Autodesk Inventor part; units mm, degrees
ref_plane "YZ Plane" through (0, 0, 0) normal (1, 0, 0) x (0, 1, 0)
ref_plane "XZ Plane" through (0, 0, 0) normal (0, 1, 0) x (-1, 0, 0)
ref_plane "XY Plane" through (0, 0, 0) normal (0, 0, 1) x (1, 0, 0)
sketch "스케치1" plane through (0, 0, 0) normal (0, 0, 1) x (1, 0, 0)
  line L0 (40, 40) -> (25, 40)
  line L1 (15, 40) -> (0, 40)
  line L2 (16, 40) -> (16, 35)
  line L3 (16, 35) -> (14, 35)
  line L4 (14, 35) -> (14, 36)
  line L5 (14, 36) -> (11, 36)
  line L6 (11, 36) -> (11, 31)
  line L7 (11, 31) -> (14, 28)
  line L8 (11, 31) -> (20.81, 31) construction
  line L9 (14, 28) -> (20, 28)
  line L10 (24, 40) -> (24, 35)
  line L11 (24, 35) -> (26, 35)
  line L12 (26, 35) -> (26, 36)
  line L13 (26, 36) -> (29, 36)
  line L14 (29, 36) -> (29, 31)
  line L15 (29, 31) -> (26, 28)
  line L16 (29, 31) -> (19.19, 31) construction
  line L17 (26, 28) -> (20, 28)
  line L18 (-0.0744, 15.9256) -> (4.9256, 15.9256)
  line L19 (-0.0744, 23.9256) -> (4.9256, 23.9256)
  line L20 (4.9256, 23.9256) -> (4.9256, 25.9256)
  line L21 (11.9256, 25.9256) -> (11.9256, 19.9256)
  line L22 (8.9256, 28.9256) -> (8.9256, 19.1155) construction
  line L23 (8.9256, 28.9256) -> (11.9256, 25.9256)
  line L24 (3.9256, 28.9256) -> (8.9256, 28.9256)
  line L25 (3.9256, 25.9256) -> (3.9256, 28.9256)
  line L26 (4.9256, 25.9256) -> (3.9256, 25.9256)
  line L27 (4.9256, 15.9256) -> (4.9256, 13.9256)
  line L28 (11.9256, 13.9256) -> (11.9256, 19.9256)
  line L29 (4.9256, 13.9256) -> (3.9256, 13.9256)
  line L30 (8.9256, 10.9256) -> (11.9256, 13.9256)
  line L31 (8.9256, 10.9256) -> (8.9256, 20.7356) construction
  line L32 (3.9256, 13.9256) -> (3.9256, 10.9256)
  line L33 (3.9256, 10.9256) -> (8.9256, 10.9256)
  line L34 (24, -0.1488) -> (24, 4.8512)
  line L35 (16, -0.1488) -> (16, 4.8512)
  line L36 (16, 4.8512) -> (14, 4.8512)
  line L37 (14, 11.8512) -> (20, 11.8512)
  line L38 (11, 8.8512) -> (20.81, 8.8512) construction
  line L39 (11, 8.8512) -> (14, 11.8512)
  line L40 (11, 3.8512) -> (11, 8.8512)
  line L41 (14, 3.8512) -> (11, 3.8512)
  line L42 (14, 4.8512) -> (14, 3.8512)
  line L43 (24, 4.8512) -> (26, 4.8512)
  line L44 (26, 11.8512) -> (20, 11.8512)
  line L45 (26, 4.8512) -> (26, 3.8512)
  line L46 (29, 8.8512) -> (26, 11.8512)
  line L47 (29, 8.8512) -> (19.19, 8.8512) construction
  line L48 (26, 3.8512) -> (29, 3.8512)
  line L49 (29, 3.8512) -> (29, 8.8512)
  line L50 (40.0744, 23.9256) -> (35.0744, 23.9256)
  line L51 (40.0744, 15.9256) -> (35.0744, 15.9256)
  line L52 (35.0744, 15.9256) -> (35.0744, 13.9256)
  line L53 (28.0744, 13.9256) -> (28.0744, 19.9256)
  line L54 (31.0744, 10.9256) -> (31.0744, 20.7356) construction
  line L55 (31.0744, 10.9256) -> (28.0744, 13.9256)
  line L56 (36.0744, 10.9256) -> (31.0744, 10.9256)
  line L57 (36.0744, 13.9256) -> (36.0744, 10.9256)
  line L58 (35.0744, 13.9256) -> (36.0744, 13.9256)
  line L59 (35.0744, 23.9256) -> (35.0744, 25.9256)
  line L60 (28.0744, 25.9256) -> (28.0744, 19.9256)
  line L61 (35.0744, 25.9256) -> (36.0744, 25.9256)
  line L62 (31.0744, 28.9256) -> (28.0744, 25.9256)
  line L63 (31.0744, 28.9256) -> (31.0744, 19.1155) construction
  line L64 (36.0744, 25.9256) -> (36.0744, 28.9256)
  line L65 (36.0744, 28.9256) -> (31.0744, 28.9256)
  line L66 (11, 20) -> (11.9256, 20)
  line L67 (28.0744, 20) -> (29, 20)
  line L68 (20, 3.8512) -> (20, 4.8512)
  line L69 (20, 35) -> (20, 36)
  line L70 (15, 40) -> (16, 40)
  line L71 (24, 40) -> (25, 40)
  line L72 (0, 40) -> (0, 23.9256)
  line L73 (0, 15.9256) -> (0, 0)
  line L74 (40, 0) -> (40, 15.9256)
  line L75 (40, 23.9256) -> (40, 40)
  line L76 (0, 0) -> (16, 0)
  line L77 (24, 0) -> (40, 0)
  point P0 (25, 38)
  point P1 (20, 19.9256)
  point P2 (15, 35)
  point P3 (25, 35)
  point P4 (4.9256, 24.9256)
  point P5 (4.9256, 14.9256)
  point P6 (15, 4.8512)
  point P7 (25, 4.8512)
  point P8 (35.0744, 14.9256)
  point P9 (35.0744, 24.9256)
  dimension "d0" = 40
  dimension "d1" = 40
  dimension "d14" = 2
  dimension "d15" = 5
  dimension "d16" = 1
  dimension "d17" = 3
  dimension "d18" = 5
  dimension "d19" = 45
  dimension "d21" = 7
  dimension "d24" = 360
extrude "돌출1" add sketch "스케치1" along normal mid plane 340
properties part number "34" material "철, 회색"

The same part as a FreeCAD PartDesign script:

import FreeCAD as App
import Part
import Sketcher

V = App.Vector
Q = App.Units.Quantity

doc = App.newDocument("Part")
body = doc.addObject("PartDesign::Body", "Body")

sketch1 = body.newObject("Sketcher::SketchObject", "Sketch")
sketch1.AttachmentSupport = (doc.getObject("XY_Plane"), [""])
sketch1.MapMode = "FlatFace"
sketch1.addGeometry([
    Part.LineSegment(V(40, 23.9, 0), V(40, 40, 0)),
    Part.LineSegment(V(40, 40, 0), V(24, 40, 0)),
    Part.LineSegment(V(24, 40, 0), V(24, 35, 0)),
    Part.LineSegment(V(24, 35, 0), V(26, 35, 0)),
    Part.LineSegment(V(26, 35, 0), V(26, 36, 0)),
    Part.LineSegment(V(26, 36, 0), V(29, 36, 0)),
    Part.LineSegment(V(29, 36, 0), V(29, 31, 0)),
    Part.LineSegment(V(29, 31, 0), V(26, 28, 0)),
    Part.LineSegment(V(26, 28, 0), V(14, 28, 0)),
    Part.LineSegment(V(14, 28, 0), V(11, 31, 0)),
    Part.LineSegment(V(11, 31, 0), V(11, 36, 0)),
    Part.LineSegment(V(11, 36, 0), V(14, 36, 0)),
    Part.LineSegment(V(14, 36, 0), V(14, 35, 0)),
    Part.LineSegment(V(14, 35, 0), V(16, 35, 0)),
    Part.LineSegment(V(16, 35, 0), V(16, 40, 0)),
    Part.LineSegment(V(16, 40, 0), V(0, 40, 0)),
    Part.LineSegment(V(0, 40, 0), V(0, 23.9, 0)),
    Part.LineSegment(V(0, 23.9, 0), V(4.9, 23.9, 0)),
    Part.LineSegment(V(4.9, 23.9, 0), V(4.9, 25.9, 0)),
    Part.LineSegment(V(4.9, 25.9, 0), V(3.9, 25.9, 0)),
    Part.LineSegment(V(3.9, 25.9, 0), V(3.9, 28.9, 0)),
    Part.LineSegment(V(3.9, 28.9, 0), V(8.9, 28.9, 0)),
    Part.LineSegment(V(8.9, 28.9, 0), V(11.9, 25.9, 0)),
    Part.LineSegment(V(11.9, 25.9, 0), V(11.9, 13.9, 0)),
    Part.LineSegment(V(11.9, 13.9, 0), V(8.9, 10.9, 0)),
    Part.LineSegment(V(8.9, 10.9, 0), V(3.9, 10.9, 0)),
    Part.LineSegment(V(3.9, 10.9, 0), V(3.9, 13.9, 0)),
    Part.LineSegment(V(3.9, 13.9, 0), V(4.9, 13.9, 0)),
    Part.LineSegment(V(4.9, 13.9, 0), V(4.9, 15.9, 0)),
    Part.LineSegment(V(4.9, 15.9, 0), V(0, 15.9, 0)),
    Part.LineSegment(V(0, 15.9, 0), V(0, 0, 0)),
    Part.LineSegment(V(0, 0, 0), V(16, 0, 0)),
    Part.LineSegment(V(16, 0, 0), V(16, 4.9, 0)),
    Part.LineSegment(V(16, 4.9, 0), V(14, 4.9, 0)),
    Part.LineSegment(V(14, 4.9, 0), V(14, 3.9, 0)),
    Part.LineSegment(V(14, 3.9, 0), V(11, 3.9, 0)),
    Part.LineSegment(V(11, 3.9, 0), V(11, 8.9, 0)),
    Part.LineSegment(V(11, 8.9, 0), V(14, 11.9, 0)),
    Part.LineSegment(V(14, 11.9, 0), V(26, 11.9, 0)),
    Part.LineSegment(V(26, 11.9, 0), V(29, 8.9, 0)),
    Part.LineSegment(V(29, 8.9, 0), V(29, 3.9, 0)),
    Part.LineSegment(V(29, 3.9, 0), V(26, 3.9, 0)),
    Part.LineSegment(V(26, 3.9, 0), V(26, 4.9, 0)),
    Part.LineSegment(V(26, 4.9, 0), V(24, 4.9, 0)),
    Part.LineSegment(V(24, 4.9, 0), V(24, 0, 0)),
    Part.LineSegment(V(24, 0, 0), V(40, 0, 0)),
    Part.LineSegment(V(40, 0, 0), V(40, 15.9, 0)),
    Part.LineSegment(V(40, 15.9, 0), V(35.1, 15.9, 0)),
    Part.LineSegment(V(35.1, 15.9, 0), V(35.1, 13.9, 0)),
    Part.LineSegment(V(35.1, 13.9, 0), V(36.1, 13.9, 0)),
    Part.LineSegment(V(36.1, 13.9, 0), V(36.1, 10.9, 0)),
    Part.LineSegment(V(36.1, 10.9, 0), V(31.1, 10.9, 0)),
    Part.LineSegment(V(31.1, 10.9, 0), V(28.1, 13.9, 0)),
    Part.LineSegment(V(28.1, 13.9, 0), V(28.1, 25.9, 0)),
    Part.LineSegment(V(28.1, 25.9, 0), V(31.1, 28.9, 0)),
    Part.LineSegment(V(31.1, 28.9, 0), V(36.1, 28.9, 0)),
    Part.LineSegment(V(36.1, 28.9, 0), V(36.1, 25.9, 0)),
    Part.LineSegment(V(36.1, 25.9, 0), V(35.1, 25.9, 0)),
    Part.LineSegment(V(35.1, 25.9, 0), V(35.1, 23.9, 0)),
    Part.LineSegment(V(35.1, 23.9, 0), V(40, 23.9, 0)),
], False)
sketch1.addConstraint([
    Sketcher.Constraint("Coincident", 0, 2, 1, 1),
    Sketcher.Constraint("Coincident", 1, 2, 2, 1),
    Sketcher.Constraint("Coincident", 2, 2, 3, 1),
    Sketcher.Constraint("Coincident", 3, 2, 4, 1),
    Sketcher.Constraint("Coincident", 4, 2, 5, 1),
    Sketcher.Constraint("Coincident", 5, 2, 6, 1),
    Sketcher.Constraint("Coincident", 6, 2, 7, 1),
    Sketcher.Constraint("Coincident", 7, 2, 8, 1),
    Sketcher.Constraint("Coincident", 8, 2, 9, 1),
    Sketcher.Constraint("Coincident", 9, 2, 10, 1),
    Sketcher.Constraint("Coincident", 10, 2, 11, 1),
    Sketcher.Constraint("Coincident", 11, 2, 12, 1),
    Sketcher.Constraint("Coincident", 12, 2, 13, 1),
    Sketcher.Constraint("Coincident", 13, 2, 14, 1),
    Sketcher.Constraint("Coincident", 14, 2, 15, 1),
    Sketcher.Constraint("Coincident", 15, 2, 16, 1),
    Sketcher.Constraint("Coincident", 16, 2, 17, 1),
    Sketcher.Constraint("Coincident", 17, 2, 18, 1),
    Sketcher.Constraint("Coincident", 18, 2, 19, 1),
    Sketcher.Constraint("Coincident", 19, 2, 20, 1),
    Sketcher.Constraint("Coincident", 20, 2, 21, 1),
    Sketcher.Constraint("Coincident", 21, 2, 22, 1),
    Sketcher.Constraint("Coincident", 22, 2, 23, 1),
    Sketcher.Constraint("Coincident", 23, 2, 24, 1),
    Sketcher.Constraint("Coincident", 24, 2, 25, 1),
    Sketcher.Constraint("Coincident", 25, 2, 26, 1),
    Sketcher.Constraint("Coincident", 26, 2, 27, 1),
    Sketcher.Constraint("Coincident", 27, 2, 28, 1),
    Sketcher.Constraint("Coincident", 28, 2, 29, 1),
    Sketcher.Constraint("Coincident", 29, 2, 30, 1),
    Sketcher.Constraint("Coincident", 30, 2, 31, 1),
    Sketcher.Constraint("Coincident", 31, 2, 32, 1),
    Sketcher.Constraint("Coincident", 32, 2, 33, 1),
    Sketcher.Constraint("Coincident", 33, 2, 34, 1),
    Sketcher.Constraint("Coincident", 34, 2, 35, 1),
    Sketcher.Constraint("Coincident", 35, 2, 36, 1),
    Sketcher.Constraint("Coincident", 36, 2, 37, 1),
    Sketcher.Constraint("Coincident", 37, 2, 38, 1),
    Sketcher.Constraint("Coincident", 38, 2, 39, 1),
    Sketcher.Constraint("Coincident", 39, 2, 40, 1),
    Sketcher.Constraint("Coincident", 40, 2, 41, 1),
    Sketcher.Constraint("Coincident", 41, 2, 42, 1),
    Sketcher.Constraint("Coincident", 42, 2, 43, 1),
    Sketcher.Constraint("Coincident", 43, 2, 44, 1),
    Sketcher.Constraint("Coincident", 44, 2, 45, 1),
    Sketcher.Constraint("Coincident", 45, 2, 46, 1),
    Sketcher.Constraint("Coincident", 46, 2, 47, 1),
    Sketcher.Constraint("Coincident", 47, 2, 48, 1),
    Sketcher.Constraint("Coincident", 48, 2, 49, 1),
    Sketcher.Constraint("Coincident", 49, 2, 50, 1),
    Sketcher.Constraint("Coincident", 50, 2, 51, 1),
    Sketcher.Constraint("Coincident", 51, 2, 52, 1),
    Sketcher.Constraint("Coincident", 52, 2, 53, 1),
    Sketcher.Constraint("Coincident", 53, 2, 54, 1),
    Sketcher.Constraint("Coincident", 54, 2, 55, 1),
    Sketcher.Constraint("Coincident", 55, 2, 56, 1),
    Sketcher.Constraint("Coincident", 56, 2, 57, 1),
    Sketcher.Constraint("Coincident", 57, 2, 58, 1),
    Sketcher.Constraint("Coincident", 58, 2, 59, 1),
    Sketcher.Constraint("Coincident", 59, 2, 0, 1),
    Sketcher.Constraint("Vertical", 0),
    Sketcher.Constraint("Horizontal", 1),
    Sketcher.Constraint("Vertical", 2),
    Sketcher.Constraint("Horizontal", 3),
    Sketcher.Constraint("Vertical", 4),
    Sketcher.Constraint("Horizontal", 5),
    Sketcher.Constraint("Vertical", 6),
    Sketcher.Constraint("Horizontal", 8),
    Sketcher.Constraint("Vertical", 10),
    Sketcher.Constraint("Horizontal", 11),
    Sketcher.Constraint("Vertical", 12),
    Sketcher.Constraint("Horizontal", 13),
    Sketcher.Constraint("Vertical", 14),
    Sketcher.Constraint("Horizontal", 15),
    Sketcher.Constraint("Vertical", 16),
    Sketcher.Constraint("Horizontal", 17),
    Sketcher.Constraint("Vertical", 18),
    Sketcher.Constraint("Horizontal", 19),
    Sketcher.Constraint("Vertical", 20),
    Sketcher.Constraint("Horizontal", 21),
    Sketcher.Constraint("Vertical", 23),
    Sketcher.Constraint("Horizontal", 25),
    Sketcher.Constraint("Vertical", 26),
    Sketcher.Constraint("Horizontal", 27),
    Sketcher.Constraint("Vertical", 28),
    Sketcher.Constraint("Horizontal", 29),
    Sketcher.Constraint("Vertical", 30),
    Sketcher.Constraint("Horizontal", 31),
    Sketcher.Constraint("Vertical", 32),
    Sketcher.Constraint("Horizontal", 33),
    Sketcher.Constraint("Vertical", 34),
    Sketcher.Constraint("Horizontal", 35),
    Sketcher.Constraint("Vertical", 36),
    Sketcher.Constraint("Horizontal", 38),
    Sketcher.Constraint("Vertical", 40),
    Sketcher.Constraint("Horizontal", 41),
    Sketcher.Constraint("Vertical", 42),
    Sketcher.Constraint("Horizontal", 43),
    Sketcher.Constraint("Vertical", 44),
    Sketcher.Constraint("Horizontal", 45),
    Sketcher.Constraint("Vertical", 46),
    Sketcher.Constraint("Horizontal", 47),
    Sketcher.Constraint("Vertical", 48),
    Sketcher.Constraint("Horizontal", 49),
    Sketcher.Constraint("Vertical", 50),
    Sketcher.Constraint("Horizontal", 51),
    Sketcher.Constraint("Vertical", 53),
    Sketcher.Constraint("Horizontal", 55),
    Sketcher.Constraint("Vertical", 56),
    Sketcher.Constraint("Horizontal", 57),
    Sketcher.Constraint("Vertical", 58),
    Sketcher.Constraint("Horizontal", 59),
    Sketcher.Constraint("Coincident", 30, 2, -1, 1),
    Sketcher.Constraint("PointOnObject", 15, 2, -2),
    Sketcher.Constraint("PointOnObject", 44, 2, -1),
    Sketcher.Constraint("Perpendicular", 7, 9),
    Sketcher.Constraint("Parallel", 9, 22),
    Sketcher.Constraint("Perpendicular", 22, 24),
    Sketcher.Constraint("Parallel", 24, 37),
    Sketcher.Constraint("Perpendicular", 37, 39),
    Sketcher.Constraint("Parallel", 39, 52),
    Sketcher.Constraint("Perpendicular", 52, 54),
    Sketcher.Constraint("Horizontal", 6, 2, 9, 2),
    Sketcher.Constraint("Horizontal", 5, 2, 10, 2),
    Sketcher.Constraint("Horizontal", 3, 2, 12, 2),
    Sketcher.Constraint("Horizontal", 1, 2, 14, 2),
    Sketcher.Constraint("Horizontal", 19, 2, 22, 2),
    Sketcher.Constraint("Horizontal", 23, 2, 26, 2),
    Sketcher.Constraint("Horizontal", 36, 2, 39, 2),
    Sketcher.Constraint("Horizontal", 35, 2, 40, 2),
    Sketcher.Constraint("Horizontal", 33, 2, 42, 2),
    Sketcher.Constraint("Horizontal", 29, 2, 46, 2),
    Sketcher.Constraint("Horizontal", 27, 2, 48, 2),
    Sketcher.Constraint("Horizontal", 25, 2, 50, 2),
    Sketcher.Constraint("Horizontal", 49, 2, 52, 2),
    Sketcher.Constraint("Horizontal", 22, 2, 53, 2),
    Sketcher.Constraint("Horizontal", 21, 2, 54, 2),
    Sketcher.Constraint("Horizontal", 53, 2, 56, 2),
    Sketcher.Constraint("Horizontal", 17, 2, 58, 2),
    Sketcher.Constraint("Vertical", 4, 2, 7, 2),
    Sketcher.Constraint("Vertical", 8, 2, 11, 2),
    Sketcher.Constraint("Vertical", 21, 2, 24, 2),
    Sketcher.Constraint("Vertical", 20, 2, 25, 2),
    Sketcher.Constraint("Vertical", 18, 2, 27, 2),
    Sketcher.Constraint("Vertical", 14, 2, 31, 2),
    Sketcher.Constraint("Vertical", 12, 2, 33, 2),
    Sketcher.Constraint("Vertical", 10, 2, 35, 2),
    Sketcher.Constraint("Vertical", 34, 2, 37, 2),
    Sketcher.Constraint("Vertical", 7, 2, 38, 2),
    Sketcher.Constraint("Vertical", 6, 2, 39, 2),
    Sketcher.Constraint("Vertical", 38, 2, 41, 2),
    Sketcher.Constraint("Vertical", 2, 2, 43, 2),
    Sketcher.Constraint("Vertical", 0, 2, 45, 2),
    Sketcher.Constraint("Vertical", 50, 2, 55, 2),
    Sketcher.Constraint("Vertical", 48, 2, 57, 2),
    Sketcher.Constraint("Equal", 3, 13),
    Sketcher.Constraint("Equal", 1, 15),
    Sketcher.Constraint("Equal", 29, 47),
    Sketcher.Constraint("Equal", 27, 49),
    Sketcher.Constraint("Equal", 25, 51),
    Sketcher.Constraint("Equal", 55, 2),
    Sketcher.Constraint("Equal", 57, 4),
    Sketcher.Constraint("Equal", 2, 6),
    Sketcher.Constraint("Equal", 43, 18),
    Sketcher.Constraint("Equal", 41, 20),
    Sketcher.Constraint("Equal", 38, 23),
    Sketcher.Constraint("Equal", 18, 28),
    Sketcher.Constraint("Equal", 12, 34),
    Sketcher.Constraint("Equal", 14, 36),
    Sketcher.Constraint("DistanceX", 3, 1, 3, 2, Q("2 mm")),
    Sketcher.Constraint("DistanceX", 5, 1, 5, 2, Q("3 mm")),
    Sketcher.Constraint("DistanceX", 19, 2, 19, 1, Q("1 mm")),
    Sketcher.Constraint("DistanceX", 21, 1, 21, 2, Q("5 mm")),
    Sketcher.Constraint("DistanceX", -1, 1, 0, 2, Q("40 mm")),
    Sketcher.Constraint("DistanceY", -1, 1, 0, 2, Q("40 mm")),
    Sketcher.Constraint("DistanceX", 1, 2, 1, 1, Q("16 mm")),
    Sketcher.Constraint("DistanceX", 17, 1, 17, 2, Q("4.9256 mm")),
    Sketcher.Constraint("DistanceY", 0, 1, 0, 2, Q("16.0744 mm")),
    Sketcher.Constraint("DistanceY", 32, 1, 32, 2, Q("4.8512 mm")),
])
pad1 = body.newObject("PartDesign::Pad", "Pad")
pad1.Profile = sketch1
pad1.Length = 340
pad1.Midplane = True

doc.recompute()
